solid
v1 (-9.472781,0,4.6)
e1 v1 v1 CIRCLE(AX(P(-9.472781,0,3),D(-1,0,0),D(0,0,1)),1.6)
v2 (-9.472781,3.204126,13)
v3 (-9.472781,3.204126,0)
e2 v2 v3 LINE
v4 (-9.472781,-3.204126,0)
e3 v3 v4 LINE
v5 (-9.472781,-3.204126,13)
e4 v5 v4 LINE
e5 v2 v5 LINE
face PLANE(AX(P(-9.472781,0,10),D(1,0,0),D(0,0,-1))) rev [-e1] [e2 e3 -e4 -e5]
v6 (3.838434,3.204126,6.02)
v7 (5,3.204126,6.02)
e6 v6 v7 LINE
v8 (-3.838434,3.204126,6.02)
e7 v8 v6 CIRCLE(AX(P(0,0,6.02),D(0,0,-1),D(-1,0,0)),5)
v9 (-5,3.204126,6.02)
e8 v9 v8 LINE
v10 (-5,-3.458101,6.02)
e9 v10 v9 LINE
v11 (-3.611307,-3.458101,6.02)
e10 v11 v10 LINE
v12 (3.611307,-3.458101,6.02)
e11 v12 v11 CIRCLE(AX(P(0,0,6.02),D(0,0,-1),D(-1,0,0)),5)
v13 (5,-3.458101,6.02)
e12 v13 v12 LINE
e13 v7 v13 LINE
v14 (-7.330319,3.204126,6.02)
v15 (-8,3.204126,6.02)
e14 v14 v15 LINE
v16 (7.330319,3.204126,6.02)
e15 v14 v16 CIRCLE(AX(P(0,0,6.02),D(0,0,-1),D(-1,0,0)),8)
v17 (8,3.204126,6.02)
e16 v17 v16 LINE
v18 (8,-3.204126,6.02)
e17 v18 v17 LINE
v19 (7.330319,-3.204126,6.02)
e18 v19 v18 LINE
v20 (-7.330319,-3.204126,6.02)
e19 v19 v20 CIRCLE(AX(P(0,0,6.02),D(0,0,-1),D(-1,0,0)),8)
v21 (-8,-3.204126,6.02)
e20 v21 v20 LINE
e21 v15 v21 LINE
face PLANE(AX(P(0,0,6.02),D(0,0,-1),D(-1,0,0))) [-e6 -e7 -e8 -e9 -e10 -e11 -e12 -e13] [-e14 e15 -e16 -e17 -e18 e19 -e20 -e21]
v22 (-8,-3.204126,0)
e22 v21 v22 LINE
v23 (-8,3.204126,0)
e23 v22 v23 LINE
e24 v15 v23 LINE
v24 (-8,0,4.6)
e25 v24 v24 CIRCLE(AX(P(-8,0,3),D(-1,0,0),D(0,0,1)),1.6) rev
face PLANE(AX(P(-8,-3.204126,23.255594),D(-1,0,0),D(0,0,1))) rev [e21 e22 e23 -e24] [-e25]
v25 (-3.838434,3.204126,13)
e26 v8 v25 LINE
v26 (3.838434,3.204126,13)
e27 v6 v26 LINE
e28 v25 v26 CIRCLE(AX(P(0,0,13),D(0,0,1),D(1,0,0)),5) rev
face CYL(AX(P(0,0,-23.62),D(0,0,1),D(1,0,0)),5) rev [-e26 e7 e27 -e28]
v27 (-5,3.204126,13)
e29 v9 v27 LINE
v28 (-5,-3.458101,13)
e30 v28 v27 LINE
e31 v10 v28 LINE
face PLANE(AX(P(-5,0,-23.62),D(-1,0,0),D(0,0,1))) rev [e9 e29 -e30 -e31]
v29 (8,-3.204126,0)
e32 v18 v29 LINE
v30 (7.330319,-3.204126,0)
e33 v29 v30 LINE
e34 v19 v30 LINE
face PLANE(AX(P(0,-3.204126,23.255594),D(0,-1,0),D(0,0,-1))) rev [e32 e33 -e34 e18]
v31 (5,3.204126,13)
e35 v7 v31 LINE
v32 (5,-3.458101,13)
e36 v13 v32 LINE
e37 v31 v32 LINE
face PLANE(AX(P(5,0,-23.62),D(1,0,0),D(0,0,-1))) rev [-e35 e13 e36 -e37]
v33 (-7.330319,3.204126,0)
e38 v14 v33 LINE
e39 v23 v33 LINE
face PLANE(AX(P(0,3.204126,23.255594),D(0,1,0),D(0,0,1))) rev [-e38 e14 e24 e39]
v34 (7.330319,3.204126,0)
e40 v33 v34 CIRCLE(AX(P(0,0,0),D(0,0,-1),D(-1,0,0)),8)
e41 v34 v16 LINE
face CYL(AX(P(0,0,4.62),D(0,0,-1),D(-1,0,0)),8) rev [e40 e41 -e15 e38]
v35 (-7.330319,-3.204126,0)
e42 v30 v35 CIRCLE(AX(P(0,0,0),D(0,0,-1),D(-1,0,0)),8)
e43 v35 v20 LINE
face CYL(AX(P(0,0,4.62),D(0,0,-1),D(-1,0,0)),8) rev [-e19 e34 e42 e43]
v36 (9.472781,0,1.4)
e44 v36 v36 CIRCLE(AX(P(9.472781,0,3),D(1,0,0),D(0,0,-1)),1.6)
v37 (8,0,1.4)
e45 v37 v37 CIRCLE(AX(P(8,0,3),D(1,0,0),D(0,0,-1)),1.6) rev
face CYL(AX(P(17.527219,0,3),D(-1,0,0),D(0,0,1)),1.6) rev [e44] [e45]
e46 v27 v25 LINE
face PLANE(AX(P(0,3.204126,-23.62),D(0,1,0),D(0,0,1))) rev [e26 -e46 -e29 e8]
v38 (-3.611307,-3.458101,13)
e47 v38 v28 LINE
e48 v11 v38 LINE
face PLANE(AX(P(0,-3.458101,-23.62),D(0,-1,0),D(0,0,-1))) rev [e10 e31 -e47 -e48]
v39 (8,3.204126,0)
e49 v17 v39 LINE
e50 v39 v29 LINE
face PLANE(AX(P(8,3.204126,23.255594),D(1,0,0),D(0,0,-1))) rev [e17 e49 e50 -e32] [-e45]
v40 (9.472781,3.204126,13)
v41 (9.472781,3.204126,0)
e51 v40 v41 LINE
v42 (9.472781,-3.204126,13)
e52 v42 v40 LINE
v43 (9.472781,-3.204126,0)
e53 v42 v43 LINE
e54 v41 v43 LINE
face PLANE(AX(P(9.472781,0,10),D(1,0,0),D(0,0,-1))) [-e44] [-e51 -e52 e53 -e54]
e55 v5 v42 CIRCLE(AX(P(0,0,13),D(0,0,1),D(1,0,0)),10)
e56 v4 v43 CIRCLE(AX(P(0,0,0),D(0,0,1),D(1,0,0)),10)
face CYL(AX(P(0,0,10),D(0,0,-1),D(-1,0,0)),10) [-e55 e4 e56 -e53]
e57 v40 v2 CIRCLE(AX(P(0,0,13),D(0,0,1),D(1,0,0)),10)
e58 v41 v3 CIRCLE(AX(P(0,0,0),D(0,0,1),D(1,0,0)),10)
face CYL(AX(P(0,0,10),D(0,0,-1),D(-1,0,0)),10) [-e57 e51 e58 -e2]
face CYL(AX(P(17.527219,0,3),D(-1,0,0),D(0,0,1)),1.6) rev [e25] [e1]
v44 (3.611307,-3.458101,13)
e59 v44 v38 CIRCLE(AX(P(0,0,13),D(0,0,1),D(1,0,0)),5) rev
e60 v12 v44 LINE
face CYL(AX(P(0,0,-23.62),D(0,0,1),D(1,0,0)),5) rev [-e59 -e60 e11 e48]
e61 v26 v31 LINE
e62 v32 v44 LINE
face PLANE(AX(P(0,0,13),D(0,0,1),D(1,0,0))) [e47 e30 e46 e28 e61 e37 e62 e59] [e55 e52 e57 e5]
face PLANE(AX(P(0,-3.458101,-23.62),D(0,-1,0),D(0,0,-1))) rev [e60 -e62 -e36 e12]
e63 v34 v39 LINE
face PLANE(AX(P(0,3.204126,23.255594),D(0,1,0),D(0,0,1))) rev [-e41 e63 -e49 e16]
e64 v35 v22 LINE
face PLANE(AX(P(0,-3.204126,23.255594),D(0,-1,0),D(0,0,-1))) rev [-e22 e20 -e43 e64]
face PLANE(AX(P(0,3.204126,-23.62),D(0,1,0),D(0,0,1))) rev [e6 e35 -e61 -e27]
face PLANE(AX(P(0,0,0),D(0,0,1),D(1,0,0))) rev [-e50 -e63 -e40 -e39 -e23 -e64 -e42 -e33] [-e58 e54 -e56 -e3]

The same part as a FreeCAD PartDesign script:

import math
import FreeCAD as App
import Part
import Sketcher
from FreeCAD import Vector
Q = App.Units.Quantity


def add_polygon(sketch, points):
    """Adds a closed chain of lines whose ends are joined by coincident constraints."""
    first, n = sketch.GeometryCount, len(points)
    for a, b in zip(points, points[1:] + points[:1]):
        sketch.addGeometry(Part.LineSegment(App.Vector(*a, 0), App.Vector(*b, 0)), False)
    for i in range(n):
        sketch.addConstraint(Sketcher.Constraint("Coincident", first + i, 2, first + (i + 1) % n, 1))

doc = App.newDocument("Part")
body = doc.addObject("PartDesign::Body", "Body")

sketch1 = body.newObject("Sketcher::SketchObject", "Sketch")
sketch1.AttachmentSupport = (doc.getObject("XY_Plane"), [""])
sketch1.MapMode = "FlatFace"
sketch1.addGeometry([
    Part.ArcOfCircle(Part.Circle(Vector(0, 0, 0), Vector(0, 0, 1), 10), math.radians(-161.312122), math.radians(-18.687878)),
    Part.LineSegment(Vector(9.472781, -3.204126, 0), Vector(9.472781, 3.204126, 0)),
    Part.ArcOfCircle(Part.Circle(Vector(0, 0, 0), Vector(0, 0, 1), 10), math.radians(18.687878), math.radians(161.312122)),
    Part.LineSegment(Vector(-9.472781, 3.204126, 0), Vector(-9.472781, -3.204126, 0)),
    Part.ArcOfCircle(Part.Circle(Vector(0, 0, 0), Vector(0, 0, 1), 8), math.radians(23.610423), math.radians(156.389577)),
    Part.ArcOfCircle(Part.Circle(Vector(0, 0, 0), Vector(0, 0, 1), 8), math.radians(0), math.radians(23.610423)),
    Part.ArcOfCircle(Part.Circle(Vector(0, 0, 0), Vector(0, 0, 1), 8), math.radians(-23.610423), math.radians(0)),
    Part.ArcOfCircle(Part.Circle(Vector(0, 0, 0), Vector(0, 0, 1), 8), math.radians(-156.389577), math.radians(-23.610423)),
    Part.ArcOfCircle(Part.Circle(Vector(0, 0, 0), Vector(0, 0, 1), 8), math.radians(156.389577), math.radians(203.610423)),
], False)
sketch1.addConstraint([
    Sketcher.Constraint("Coincident", 0, 2, 1, 1),
    Sketcher.Constraint("Coincident", 1, 2, 2, 1),
    Sketcher.Constraint("Coincident", 2, 2, 3, 1),
    Sketcher.Constraint("Coincident", 3, 2, 0, 1),
    Sketcher.Constraint("Tangent", 4, 1, 5, 2),
    Sketcher.Constraint("Tangent", 5, 1, 6, 2),
    Sketcher.Constraint("Tangent", 6, 1, 7, 2),
    Sketcher.Constraint("Tangent", 7, 1, 8, 2),
    Sketcher.Constraint("Tangent", 8, 1, 4, 2),
    Sketcher.Constraint("Vertical", 1),
    Sketcher.Constraint("Vertical", 3),
    Sketcher.Constraint("Coincident", 0, 3, -1, 1),
    Sketcher.Constraint("Coincident", 2, 3, -1, 1),
    Sketcher.Constraint("Coincident", 4, 3, -1, 1),
    Sketcher.Constraint("Coincident", 6, 3, -1, 1),
    Sketcher.Constraint("Equal", 0, 2),
    Sketcher.Constraint("PointOnObject", 5, 1, -1),
    Sketcher.Constraint("Horizontal", 1, 2, 2, 2),
    Sketcher.Constraint("Horizontal", 2, 2, 4, 1),
    Sketcher.Constraint("Horizontal", 3, 2, 6, 1),
    Sketcher.Constraint("Horizontal", 6, 1, 7, 1),
    Sketcher.Constraint("Horizontal", 4, 1, 8, 1),
    Sketcher.Constraint("Radius", 0, Q("10 mm")),
    Sketcher.Constraint("Radius", 4, Q("8 mm")),
    Sketcher.Constraint("DistanceY", 1, 1, 1, 2, Q("6.408252 mm")),
])
pad1 = body.newObject("PartDesign::Pad", "Pad")
pad1.Profile = sketch1
pad1.Length = 10

sketch2 = body.newObject("Sketcher::SketchObject", "Sketch001")
sketch2.AttachmentSupport = (doc.getObject("YZ_Plane"), [""])
sketch2.MapMode = "FlatFace"
sketch2.AttachmentOffset = App.Placement(Vector(0, 0, -9.472781), App.Rotation())
sketch2.addGeometry(Part.Circle(Vector(0, 3, 0), Vector(0, 0, 1), 1.6), False)
sketch2.addConstraint([
    Sketcher.Constraint("PointOnObject", 0, 3, -2),
    Sketcher.Constraint("Diameter", 0, Q("3.2 mm")),
    Sketcher.Constraint("DistanceY", -1, 1, 0, 3, Q("3 mm")),
])
pocket1 = body.newObject("PartDesign::Pocket", "Pocket")
pocket1.Profile = sketch2
pocket1.Length = 27
pocket1.Reversed = True

sketch3 = body.newObject("Sketcher::SketchObject", "Sketch002")
sketch3.AttachmentSupport = (doc.getObject("XY_Plane"), [""])
sketch3.MapMode = "FlatFace"
sketch3.addGeometry(Part.Circle(Vector(0, 0, 0), Vector(0, 0, 1), 8), False)
sketch3.addConstraint([
    Sketcher.Constraint("Coincident", 0, 3, -1, 1),
    Sketcher.Constraint("Diameter", 0, Q("16 mm")),
])
pad2 = body.newObject("PartDesign::Pad", "Pad001")
pad2.Profile = sketch3
pad2.Length = 10

sketch4 = body.newObject("Sketcher::SketchObject", "Sketch003")
sketch4.AttachmentSupport = (doc.getObject("XY_Plane"), [""])
sketch4.MapMode = "FlatFace"
sketch4.addGeometry(Part.Circle(Vector(0, 0, 0), Vector(0, 0, 1), 8), False)
sketch4.addConstraint([
    Sketcher.Constraint("Coincident", 0, 3, -1, 1),
    Sketcher.Constraint("Diameter", 0, Q("16 mm")),
])
pocket2 = body.newObject("PartDesign::Pocket", "Pocket001")
pocket2.Profile = sketch4
pocket2.Length = 4.62
pocket2.Reversed = True

sketch5 = body.newObject("Sketcher::SketchObject", "Sketch004")
sketch5.AttachmentSupport = (doc.getObject("XY_Plane"), [""])
sketch5.MapMode = "FlatFace"
sketch5.AttachmentOffset = App.Placement(Vector(0, 0, 10), App.Rotation())
sketch5.addGeometry(Part.Circle(Vector(0, 0, 0), Vector(0, 0, 1), 5), False)
sketch5.addConstraint([
    Sketcher.Constraint("Coincident", 0, 3, -1, 1),
    Sketcher.Constraint("Diameter", 0, Q("10 mm")),
])
pocket3 = body.newObject("PartDesign::Pocket", "Pocket002")
pocket3.Profile = sketch5
pocket3.Length = 33.62

sketch6 = body.newObject("Sketcher::SketchObject", "Sketch005")
sketch6.AttachmentSupport = (doc.getObject("XY_Plane"), [""])
sketch6.MapMode = "FlatFace"
sketch6.AttachmentOffset = App.Placement(Vector(0, 0, 10), App.Rotation())
sketch6.addGeometry([
    Part.ArcOfCircle(Part.Circle(Vector(0, 0, 0), Vector(0, 0, 1), 5), math.radians(-43.758495), math.radians(0)),
    Part.LineSegment(Vector(3.611307, -3.458101, 0), Vector(5, -3.458101, 0)),
    Part.LineSegment(Vector(5, -3.458101, 0), Vector(5, 0, 0)),
    Part.LineSegment(Vector(5, 3.204126, 0), Vector(3.838434, 3.204126, 0)),
    Part.ArcOfCircle(Part.Circle(Vector(0, 0, 0), Vector(0, 0, 1), 5), math.radians(0), math.radians(39.853378)),
    Part.LineSegment(Vector(5, 0, 0), Vector(5, 3.204126, 0)),
    Part.LineSegment(Vector(-3.838434, 3.204126, 0), Vector(-5, 3.204126, 0)),
    Part.LineSegment(Vector(-5, 3.204126, 0), Vector(-5, 0, 0)),
    Part.ArcOfCircle(Part.Circle(Vector(0, 0, 0), Vector(0, 0, 1), 5), math.radians(140.146622), math.radians(180)),
    Part.ArcOfCircle(Part.Circle(Vector(0, 0, 0), Vector(0, 0, 1), 5), math.radians(180), math.radians(223.758495)),
    Part.LineSegment(Vector(-5, 0, 0), Vector(-5, -3.458101, 0)),
    Part.LineSegment(Vector(-5, -3.458101, 0), Vector(-3.611307, -3.458101, 0)),
], False)
sketch6.addConstraint([
    Sketcher.Constraint("Coincident", 0, 1, 1, 1),
    Sketcher.Constraint("Coincident", 1, 2, 2, 1),
    Sketcher.Constraint("Tangent", 2, 2, 0, 2),
    Sketcher.Constraint("Coincident", 3, 2, 4, 2),
    Sketcher.Constraint("Tangent", 4, 1, 5, 1),
    Sketcher.Constraint("Coincident", 5, 2, 3, 1),
    Sketcher.Constraint("Coincident", 6, 2, 7, 1),
    Sketcher.Constraint("Tangent", 7, 2, 8, 2),
    Sketcher.Constraint("Coincident", 8, 1, 6, 1),
    Sketcher.Constraint("Tangent", 9, 1, 10, 1),
    Sketcher.Constraint("Coincident", 10, 2, 11, 1),
    Sketcher.Constraint("Coincident", 11, 2, 9, 2),
    Sketcher.Constraint("Horizontal", 1),
    Sketcher.Constraint("Vertical", 2),
    Sketcher.Constraint("Horizontal", 3),
    Sketcher.Constraint("Vertical", 5),
    Sketcher.Constraint("Horizontal", 6),
    Sketcher.Constraint("Vertical", 7),
    Sketcher.Constraint("Vertical", 10),
    Sketcher.Constraint("Horizontal", 11),
    Sketcher.Constraint("Coincident", 0, 3, -1, 1),
    Sketcher.Constraint("Coincident", 4, 3, -1, 1),
    Sketcher.Constraint("Coincident", 8, 3, -1, 1),
    Sketcher.Constraint("Coincident", 9, 3, -1, 1),
    Sketcher.Constraint("Equal", 0, 4),
    Sketcher.Constraint("Equal", 4, 8),
    Sketcher.Constraint("Equal", 8, 9),
    Sketcher.Constraint("Horizontal", 5, 2, 6, 2),
    Sketcher.Constraint("Horizontal", 1, 2, 10, 2),
    Sketcher.Constraint("Radius", 0, Q("5 mm")),
    Sketcher.Constraint("DistanceY", 2, 1, 2, 2, Q("3.458101 mm")),
    Sketcher.Constraint("DistanceX", 3, 2, 3, 1, Q("1.161566 mm")),
])
pocket4 = body.newObject("PartDesign::Pocket", "Pocket003")
pocket4.Profile = sketch6
pocket4.Length = 33.62

sketch7 = body.newObject("Sketcher::SketchObject", "Sketch006")
sketch7.AttachmentSupport = (doc.getObject("XY_Plane"), [""])
sketch7.MapMode = "FlatFace"
sketch7.AttachmentOffset = App.Placement(Vector(0, 0, 10), App.Rotation())
sketch7.addGeometry([
    Part.LineSegment(Vector(-9.472781, 3.204126, 0), Vector(-9.472781, -3.204126, 0)),
    Part.ArcOfCircle(Part.Circle(Vector(0, 0, 0), Vector(0, 0, 1), 10), math.radians(-161.312122), math.radians(-18.687878)),
    Part.LineSegment(Vector(9.472781, -3.204126, 0), Vector(9.472781, 3.204126, 0)),
    Part.ArcOfCircle(Part.Circle(Vector(0, 0, 0), Vector(0, 0, 1), 10), math.radians(18.687878), math.radians(161.312122)),
    Part.LineSegment(Vector(-5, 3.204126, 0), Vector(-3.838434, 3.204126, 0)),
    Part.ArcOfCircle(Part.Circle(Vector(0, 0, 0), Vector(0, 0, 1), 5), math.radians(39.853378), math.radians(140.146622)),
    Part.LineSegment(Vector(3.838434, 3.204126, 0), Vector(5, 3.204126, 0)),
    Part.LineSegment(Vector(5, 3.204126, 0), Vector(5, -3.458101, 0)),
    Part.LineSegment(Vector(5, -3.458101, 0), Vector(3.611307, -3.458101, 0)),
    Part.ArcOfCircle(Part.Circle(Vector(0, 0, 0), Vector(0, 0, 1), 5), math.radians(-136.241505), math.radians(-43.758495)),
    Part.LineSegment(Vector(-3.611307, -3.458101, 0), Vector(-5, -3.458101, 0)),
    Part.LineSegment(Vector(-5, -3.458101, 0), Vector(-5, 3.204126, 0)),
], False)
sketch7.addConstraint([
    Sketcher.Constraint("Coincident", 0, 2, 1, 1),
    Sketcher.Constraint("Coincident", 1, 2, 2, 1),
    Sketcher.Constraint("Coincident", 2, 2, 3, 1),
    Sketcher.Constraint("Coincident", 3, 2, 0, 1),
    Sketcher.Constraint("Coincident", 4, 2, 5, 2),
    Sketcher.Constraint("Coincident", 5, 1, 6, 1),
    Sketcher.Constraint("Coincident", 6, 2, 7, 1),
    Sketcher.Constraint("Coincident", 7, 2, 8, 1),
    Sketcher.Constraint("Coincident", 8, 2, 9, 2),
    Sketcher.Constraint("Coincident", 9, 1, 10, 1),
    Sketcher.Constraint("Coincident", 10, 2, 11, 1),
    Sketcher.Constraint("Coincident", 11, 2, 4, 1),
    Sketcher.Constraint("Vertical", 0),
    Sketcher.Constraint("Vertical", 2),
    Sketcher.Constraint("Horizontal", 4),
    Sketcher.Constraint("Horizontal", 6),
    Sketcher.Constraint("Vertical", 7),
    Sketcher.Constraint("Horizontal", 8),
    Sketcher.Constraint("Horizontal", 10),
    Sketcher.Constraint("Vertical", 11),
    Sketcher.Constraint("Coincident", 1, 3, -1, 1),
    Sketcher.Constraint("Coincident", 3, 3, -1, 1),
    Sketcher.Constraint("Coincident", 5, 3, -1, 1),
    Sketcher.Constraint("Coincident", 9, 3, -1, 1),
    Sketcher.Constraint("Equal", 1, 3),
    Sketcher.Constraint("Equal", 5, 9),
    Sketcher.Constraint("Symmetric", 7, 2, 10, 2, -2),
    Sketcher.Constraint("Horizontal", 0, 2, 1, 2),
    Sketcher.Constraint("Horizontal", 3, 2, 4, 2),
    Sketcher.Constraint("Horizontal", 4, 2, 5, 1),
    Sketcher.Constraint("Radius", 1, Q("10 mm")),
    Sketcher.Constraint("Radius", 5, Q("5 mm")),
    Sketcher.Constraint("DistanceX", -1, 1, 6, 2, Q("5 mm")),
    Sketcher.Constraint("DistanceY", 0, 2, 0, 1, Q("6.408252 mm")),
    Sketcher.Constraint("DistanceY", 7, 2, -1, 1, Q("3.458101 mm")),
])
pad3 = body.newObject("PartDesign::Pad", "Pad002")
pad3.Profile = sketch7
pad3.Length = 3

sketch8 = body.newObject("Sketcher::SketchObject", "Sketch007")
sketch8.AttachmentSupport = (doc.getObject("XY_Plane"), [""])
sketch8.MapMode = "FlatFace"
sketch8.AttachmentOffset = App.Placement(Vector(0, 0, 4.62), App.Rotation())
sketch8.addGeometry([
    Part.Circle(Vector(0, 0, 0), Vector(0, 0, 1), 8),
    Part.LineSegment(Vector(3.611307, -3.458101, 0), Vector(5, -3.458101, 0)),
    Part.LineSegment(Vector(5, -3.458101, 0), Vector(5, 3.204126, 0)),
    Part.LineSegment(Vector(5, 3.204126, 0), Vector(3.838434, 3.204126, 0)),
    Part.ArcOfCircle(Part.Circle(Vector(0, 0, 0), Vector(0, 0, 1), 5), math.radians(39.853378), math.radians(140.146622)),
    Part.LineSegment(Vector(-3.838434, 3.204126, 0), Vector(-5, 3.204126, 0)),
    Part.LineSegment(Vector(-5, 3.204126, 0), Vector(-5, -3.458101, 0)),
    Part.LineSegment(Vector(-5, -3.458101, 0), Vector(-3.611307, -3.458101, 0)),
    Part.ArcOfCircle(Part.Circle(Vector(0, 0, 0), Vector(0, 0, 1), 5), math.radians(-136.241505), math.radians(-43.758495)),
], False)
sketch8.addConstraint([
    Sketcher.Constraint("Coincident", 1, 2, 2, 1),
    Sketcher.Constraint("Coincident", 2, 2, 3, 1),
    Sketcher.Constraint("Coincident", 3, 2, 4, 1),
    Sketcher.Constraint("Coincident", 4, 2, 5, 1),
    Sketcher.Constraint("Coincident", 5, 2, 6, 1),
    Sketcher.Constraint("Coincident", 6, 2, 7, 1),
    Sketcher.Constraint("Coincident", 7, 2, 8, 1),
    Sketcher.Constraint("Coincident", 8, 2, 1, 1),
    Sketcher.Constraint("Horizontal", 1),
    Sketcher.Constraint("Vertical", 2),
    Sketcher.Constraint("Horizontal", 3),
    Sketcher.Constraint("Horizontal", 5),
    Sketcher.Constraint("Vertical", 6),
    Sketcher.Constraint("Horizontal", 7),
    Sketcher.Constraint("Coincident", 0, 3, -1, 1),
    Sketcher.Constraint("Coincident", 4, 3, -1, 1),
    Sketcher.Constraint("Coincident", 8, 3, -1, 1),
    Sketcher.Constraint("Equal", 4, 8),
    Sketcher.Constraint("Symmetric", 2, 2, 5, 2, -2),
    Sketcher.Constraint("Horizontal", 1, 2, 6, 2),
    Sketcher.Constraint("Diameter", 0, Q("16 mm")),
    Sketcher.Constraint("Radius", 4, Q("5 mm")),
    Sketcher.Constraint("DistanceX", -1, 1, 1, 2, Q("5 mm")),
    Sketcher.Constraint("DistanceY", 1, 2, -1, 1, Q("3.458101 mm")),
    Sketcher.Constraint("DistanceX", 3, 2, 3, 1, Q("1.161566 mm")),
])
pocket5 = body.newObject("PartDesign::Pocket", "Pocket004")
pocket5.Profile = sketch8
pocket5.Length = 1.4
pocket5.Reversed = True

sketch9 = body.newObject("Sketcher::SketchObject", "Sketch008")
sketch9.AttachmentSupport = (doc.getObject("XY_Plane"), [""])
sketch9.MapMode = "FlatFace"
add_polygon(sketch9, [(8, 3.204126), (8, -3.204126), (-8, -3.204126), (-8, 3.204126)])
sketch9.addConstraint([
    Sketcher.Constraint("Vertical", 0),
    Sketcher.Constraint("Horizontal", 1),
    Sketcher.Constraint("Vertical", 2),
    Sketcher.Constraint("Horizontal", 3),
    Sketcher.Constraint("Symmetric", 0, 2, 2, 2, -1, 1),
    Sketcher.Constraint("DistanceX", 1, 2, 1, 1, Q("16 mm")),
    Sketcher.Constraint("DistanceY", 0, 2, 0, 1, Q("6.408252 mm")),
])
pocket6 = body.newObject("PartDesign::Pocket", "Pocket005")
pocket6.Profile = sketch9
pocket6.Length = 6.02
pocket6.Reversed = True

doc.recompute()
